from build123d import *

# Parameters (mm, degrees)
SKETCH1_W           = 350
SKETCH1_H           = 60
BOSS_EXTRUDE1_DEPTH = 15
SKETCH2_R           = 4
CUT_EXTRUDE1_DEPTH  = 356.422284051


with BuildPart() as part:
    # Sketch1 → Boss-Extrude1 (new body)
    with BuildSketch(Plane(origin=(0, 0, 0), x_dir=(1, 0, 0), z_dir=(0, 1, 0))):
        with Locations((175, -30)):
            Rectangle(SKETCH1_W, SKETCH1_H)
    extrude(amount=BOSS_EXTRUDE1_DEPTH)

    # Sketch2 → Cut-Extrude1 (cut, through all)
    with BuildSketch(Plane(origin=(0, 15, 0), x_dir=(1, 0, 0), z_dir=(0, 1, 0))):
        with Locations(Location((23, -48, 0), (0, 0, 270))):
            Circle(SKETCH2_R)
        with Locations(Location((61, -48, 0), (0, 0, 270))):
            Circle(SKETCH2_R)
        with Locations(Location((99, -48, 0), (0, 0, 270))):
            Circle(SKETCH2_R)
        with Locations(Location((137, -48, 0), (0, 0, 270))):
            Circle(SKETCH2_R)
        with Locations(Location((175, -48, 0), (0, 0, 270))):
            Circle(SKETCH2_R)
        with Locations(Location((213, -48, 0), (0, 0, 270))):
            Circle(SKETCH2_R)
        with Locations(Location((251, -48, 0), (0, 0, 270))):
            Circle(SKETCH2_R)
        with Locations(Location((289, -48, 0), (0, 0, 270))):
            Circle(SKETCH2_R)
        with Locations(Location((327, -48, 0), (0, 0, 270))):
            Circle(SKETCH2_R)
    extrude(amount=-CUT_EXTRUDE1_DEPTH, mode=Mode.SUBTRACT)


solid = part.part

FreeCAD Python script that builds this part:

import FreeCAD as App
import Part
import Sketcher
from FreeCAD import Vector
Q = App.Units.Quantity


def add_polygon(sketch, points):
    """Adds a closed chain of lines whose ends are joined by coincident constraints."""
    first, n = sketch.GeometryCount, len(points)
    for a, b in zip(points, points[1:] + points[:1]):
        sketch.addGeometry(Part.LineSegment(App.Vector(*a, 0), App.Vector(*b, 0)), False)
    for i in range(n):
        sketch.addConstraint(Sketcher.Constraint("Coincident", first + i, 2, first + (i + 1) % n, 1))

doc = App.newDocument("Part")
body = doc.addObject("PartDesign::Body", "Body")

# Sketch on XZ plane
sketch1 = body.newObject("Sketcher::SketchObject", "Sketch")
sketch1.AttachmentSupport = (doc.getObject("XZ_Plane"), [""])
sketch1.MapMode = "FlatFace"
add_polygon(sketch1, [(0, 0), (0, 60), (350, 60), (350, 0)])  # lines 0-3
sketch1.addConstraint([
    Sketcher.Constraint("Vertical", 0),
    Sketcher.Constraint("Horizontal", 1),
    Sketcher.Constraint("Vertical", 2),
    Sketcher.Constraint("Horizontal", 3),
    Sketcher.Constraint("Coincident", 3, 2, -1, 1),
    Sketcher.Constraint("DistanceX", 1, 1, 1, 2, Q("350 mm")),
    Sketcher.Constraint("DistanceY", 0, 1, 0, 2, Q("60 mm")),
])
pad1 = body.newObject("PartDesign::Pad", "Pad")
pad1.Profile = sketch1
pad1.Length = 15
pad1.Reversed = True

# Sketch on XZ plane
sketch2 = body.newObject("Sketcher::SketchObject", "Sketch001")
sketch2.AttachmentSupport = (doc.getObject("XZ_Plane"), [""])
sketch2.MapMode = "FlatFace"
sketch2.AttachmentOffset = App.Placement(Vector(0, 0, -15), App.Rotation())
sketch2.addGeometry([
    Part.Circle(Vector(23, 48, 0), Vector(0, 0, 1), 4),  # 0
    Part.Circle(Vector(61, 48, 0), Vector(0, 0, 1), 4),  # 1
    Part.Circle(Vector(99, 48, 0), Vector(0, 0, 1), 4),  # 2
    Part.Circle(Vector(137, 48, 0), Vector(0, 0, 1), 4),  # 3
    Part.Circle(Vector(175, 48, 0), Vector(0, 0, 1), 4),  # 4
    Part.Circle(Vector(213, 48, 0), Vector(0, 0, 1), 4),  # 5
    Part.Circle(Vector(251, 48, 0), Vector(0, 0, 1), 4),  # 6
    Part.Circle(Vector(289, 48, 0), Vector(0, 0, 1), 4),  # 7
    Part.Circle(Vector(327, 48, 0), Vector(0, 0, 1), 4),  # 8
], False)
sketch2.addConstraint([
    Sketcher.Constraint("Equal", 0, 1),
    Sketcher.Constraint("Equal", 1, 2),
    Sketcher.Constraint("Equal", 2, 3),
    Sketcher.Constraint("Equal", 3, 4),
    Sketcher.Constraint("Equal", 4, 5),
    Sketcher.Constraint("Equal", 5, 6),
    Sketcher.Constraint("Equal", 6, 7),
    Sketcher.Constraint("Equal", 7, 8),
    Sketcher.Constraint("Horizontal", 0, 3, 1, 3),
    Sketcher.Constraint("Horizontal", 1, 3, 2, 3),
    Sketcher.Constraint("Horizontal", 2, 3, 3, 3),
    Sketcher.Constraint("Horizontal", 3, 3, 4, 3),
    Sketcher.Constraint("Horizontal", 4, 3, 5, 3),
    Sketcher.Constraint("Horizontal", 5, 3, 6, 3),
    Sketcher.Constraint("Horizontal", 6, 3, 7, 3),
    Sketcher.Constraint("Horizontal", 7, 3, 8, 3),
    Sketcher.Constraint("Diameter", 0, Q("8 mm")),
    Sketcher.Constraint("DistanceX", -1, 1, 0, 3, Q("23 mm")),
    Sketcher.Constraint("DistanceY", -1, 1, 0, 3, Q("48 mm")),
    Sketcher.Constraint("DistanceX", -1, 1, 1, 3, Q("61 mm")),
    Sketcher.Constraint("DistanceX", -1, 1, 2, 3, Q("99 mm")),
    Sketcher.Constraint("DistanceX", -1, 1, 3, 3, Q("137 mm")),
    Sketcher.Constraint("DistanceX", -1, 1, 4, 3, Q("175 mm")),
    Sketcher.Constraint("DistanceX", -1, 1, 5, 3, Q("213 mm")),
    Sketcher.Constraint("DistanceX", -1, 1, 6, 3, Q("251 mm")),
    Sketcher.Constraint("DistanceX", -1, 1, 7, 3, Q("289 mm")),
    Sketcher.Constraint("DistanceX", -1, 1, 8, 3, Q("327 mm")),
])
pocket1 = body.newObject("PartDesign::Pocket", "Pocket")
pocket1.Profile = sketch2
pocket1.Type = "ThroughAll"
pocket1.Reversed = True

doc.recompute()
